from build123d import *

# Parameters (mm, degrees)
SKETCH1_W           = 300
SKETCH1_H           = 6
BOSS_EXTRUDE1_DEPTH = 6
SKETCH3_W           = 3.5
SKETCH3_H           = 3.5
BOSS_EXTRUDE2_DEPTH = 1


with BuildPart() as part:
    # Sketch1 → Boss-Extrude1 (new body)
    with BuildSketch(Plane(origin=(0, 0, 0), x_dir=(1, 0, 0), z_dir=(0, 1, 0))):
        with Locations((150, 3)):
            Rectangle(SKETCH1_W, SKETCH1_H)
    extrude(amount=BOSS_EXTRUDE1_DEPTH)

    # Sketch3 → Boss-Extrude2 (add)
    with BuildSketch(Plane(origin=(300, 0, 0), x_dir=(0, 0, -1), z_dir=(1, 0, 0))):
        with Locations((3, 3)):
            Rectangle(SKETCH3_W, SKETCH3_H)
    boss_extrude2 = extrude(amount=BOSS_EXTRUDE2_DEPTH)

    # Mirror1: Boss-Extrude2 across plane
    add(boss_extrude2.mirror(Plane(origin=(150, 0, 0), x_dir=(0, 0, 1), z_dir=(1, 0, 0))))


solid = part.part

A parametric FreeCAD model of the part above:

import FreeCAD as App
import Part
import Sketcher

doc = App.newDocument("Part")
body = doc.addObject("PartDesign::Body", "Body")

# Sketch on XZ plane
sketch1 = body.newObject("Sketcher::SketchObject", "Sketch")
sketch1.AttachmentSupport = (doc.getObject("XZ_Plane"), [""])
sketch1.MapMode = "FlatFace"
sketch1.addGeometry([
    Part.LineSegment(App.Vector(0, -6, 0), App.Vector(0, 0, 0)),
    Part.LineSegment(App.Vector(0, 0, 0), App.Vector(300, 0, 0)),
    Part.LineSegment(App.Vector(300, 0, 0), App.Vector(300, -6, 0)),
    Part.LineSegment(App.Vector(300, -6, 0), App.Vector(0, -6, 0)),
], False)
sketch1.addConstraint([
    Sketcher.Constraint("Coincident", 0, 2, 1, 1),
    Sketcher.Constraint("Coincident", 1, 2, 2, 1),
    Sketcher.Constraint("Coincident", 2, 2, 3, 1),
    Sketcher.Constraint("Coincident", 3, 2, 0, 1),
    Sketcher.Constraint("Vertical", 0),
    Sketcher.Constraint("Horizontal", 1),
    Sketcher.Constraint("Vertical", 2),
    Sketcher.Constraint("Horizontal", 3),
    Sketcher.Constraint("Coincident", 0, 2, -1, 1),
    Sketcher.Constraint("DistanceX", 1, 1, 1, 2, 300.0),
    Sketcher.Constraint("DistanceY", 0, 1, 0, 2, 6.0),
])
pad1 = body.newObject("PartDesign::Pad", "Pad")
pad1.Profile = sketch1
pad1.Length = 6
pad1.Reversed = True

# Sketch on YZ plane
sketch2 = body.newObject("Sketcher::SketchObject", "Sketch001")
sketch2.AttachmentSupport = (doc.getObject("YZ_Plane"), [""])
sketch2.MapMode = "FlatFace"
sketch2.AttachmentOffset = App.Placement(App.Vector(0, 0, 300), App.Rotation())
sketch2.addGeometry([
    Part.LineSegment(App.Vector(4.8, -1.2, 0), App.Vector(1.2, -1.2, 0)),
    Part.LineSegment(App.Vector(1.2, -1.2, 0), App.Vector(1.2, -4.8, 0)),
    Part.LineSegment(App.Vector(1.2, -4.8, 0), App.Vector(4.8, -4.8, 0)),
    Part.LineSegment(App.Vector(4.8, -4.8, 0), App.Vector(4.8, -1.2, 0)),
], False)
sketch2.addConstraint([
    Sketcher.Constraint("Coincident", 0, 2, 1, 1),
    Sketcher.Constraint("Coincident", 1, 2, 2, 1),
    Sketcher.Constraint("Coincident", 2, 2, 3, 1),
    Sketcher.Constraint("Coincident", 3, 2, 0, 1),
    Sketcher.Constraint("Horizontal", 0),
    Sketcher.Constraint("Vertical", 1),
    Sketcher.Constraint("Horizontal", 2),
    Sketcher.Constraint("Vertical", 3),
    Sketcher.Constraint("Equal", 2, 1),
    Sketcher.Constraint("DistanceX", 0, 2, 0, 1, 3.5),
    Sketcher.Constraint("DistanceX", -1, 1, 0, 2, 1.25),
    Sketcher.Constraint("DistanceY", 0, 2, -1, 1, 1.25),
])
pad2 = body.newObject("PartDesign::Pad", "Pad001")
pad2.Profile = sketch2
pad2.Length = 1
doc.recompute()

datumplane = body.newObject("PartDesign::Plane", "DatumPlane")
datumplane.AttachmentSupport = (doc.getObject("YZ_Plane"), [""])
datumplane.MapMode = "FlatFace"
datumplane.AttachmentOffset = App.Placement(App.Vector(0, 0, 150), App.Rotation())
mirrored = body.newObject("PartDesign::Mirrored", "Mirrored")
mirrored.Originals = [pad2]
mirrored.MirrorPlane = (datumplane, [""])
body.Tip = mirrored

doc.recompute()
